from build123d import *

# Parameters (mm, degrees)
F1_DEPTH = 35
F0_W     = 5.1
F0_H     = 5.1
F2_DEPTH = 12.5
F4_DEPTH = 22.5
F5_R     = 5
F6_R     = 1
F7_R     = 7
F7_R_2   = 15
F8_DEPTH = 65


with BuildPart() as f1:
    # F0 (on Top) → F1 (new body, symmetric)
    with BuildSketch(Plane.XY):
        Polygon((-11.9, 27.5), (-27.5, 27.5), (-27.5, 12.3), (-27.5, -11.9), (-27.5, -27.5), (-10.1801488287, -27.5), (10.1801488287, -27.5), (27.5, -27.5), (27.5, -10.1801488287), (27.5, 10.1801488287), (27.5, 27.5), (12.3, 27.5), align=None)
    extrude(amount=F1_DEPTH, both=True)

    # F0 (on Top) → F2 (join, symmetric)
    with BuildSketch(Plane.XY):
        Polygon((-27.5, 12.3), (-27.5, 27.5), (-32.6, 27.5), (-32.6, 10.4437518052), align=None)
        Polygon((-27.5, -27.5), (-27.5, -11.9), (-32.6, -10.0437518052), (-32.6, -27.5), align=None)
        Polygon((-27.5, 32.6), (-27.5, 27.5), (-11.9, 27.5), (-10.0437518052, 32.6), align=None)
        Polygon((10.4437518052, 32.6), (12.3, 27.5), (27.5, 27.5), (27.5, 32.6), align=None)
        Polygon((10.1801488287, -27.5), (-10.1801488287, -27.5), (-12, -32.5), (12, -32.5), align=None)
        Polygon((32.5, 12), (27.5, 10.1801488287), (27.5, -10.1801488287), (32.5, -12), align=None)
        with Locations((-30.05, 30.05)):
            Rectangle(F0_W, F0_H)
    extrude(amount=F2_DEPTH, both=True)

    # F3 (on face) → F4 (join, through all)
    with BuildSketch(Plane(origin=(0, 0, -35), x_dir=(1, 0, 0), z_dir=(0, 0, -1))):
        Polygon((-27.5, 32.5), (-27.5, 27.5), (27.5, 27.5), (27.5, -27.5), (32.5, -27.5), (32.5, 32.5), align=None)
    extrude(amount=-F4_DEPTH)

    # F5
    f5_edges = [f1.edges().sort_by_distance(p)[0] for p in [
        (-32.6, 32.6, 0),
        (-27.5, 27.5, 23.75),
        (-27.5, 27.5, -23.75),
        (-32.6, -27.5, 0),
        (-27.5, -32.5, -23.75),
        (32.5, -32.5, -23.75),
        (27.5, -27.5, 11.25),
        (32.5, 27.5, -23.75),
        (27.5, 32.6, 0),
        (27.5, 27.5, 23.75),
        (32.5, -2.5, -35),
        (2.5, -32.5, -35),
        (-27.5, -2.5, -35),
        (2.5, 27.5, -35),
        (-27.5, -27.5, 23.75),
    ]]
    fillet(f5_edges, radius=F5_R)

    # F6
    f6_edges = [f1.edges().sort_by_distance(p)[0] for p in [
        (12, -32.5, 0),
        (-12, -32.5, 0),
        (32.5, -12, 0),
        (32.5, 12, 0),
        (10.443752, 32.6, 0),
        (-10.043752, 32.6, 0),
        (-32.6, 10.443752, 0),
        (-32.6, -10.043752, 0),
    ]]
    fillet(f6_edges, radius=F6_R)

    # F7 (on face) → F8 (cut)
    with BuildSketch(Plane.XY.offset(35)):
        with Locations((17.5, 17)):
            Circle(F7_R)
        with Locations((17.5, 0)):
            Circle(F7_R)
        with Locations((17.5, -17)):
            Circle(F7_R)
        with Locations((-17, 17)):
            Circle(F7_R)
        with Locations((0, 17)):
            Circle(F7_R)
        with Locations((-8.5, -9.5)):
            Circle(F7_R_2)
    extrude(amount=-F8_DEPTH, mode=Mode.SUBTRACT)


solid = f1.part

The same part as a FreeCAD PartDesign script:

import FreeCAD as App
import Part
import Sketcher
from FreeCAD import Vector
Q = App.Units.Quantity


def edges_at(feature, points):
    """Names of the edges that pass closest to the given points."""
    edges = feature.Shape.Edges
    near = lambda p: min(range(len(edges)), key=lambda i: edges[i].distToShape(Part.Vertex(*p))[0])
    return sorted({f"Edge{near(p) + 1}" for p in points})

doc = App.newDocument("Part")
body = doc.addObject("PartDesign::Body", "Body")

# Sketch on XY plane
sketch1 = doc.addObject("Sketcher::SketchObject", "Sketch")
body.addObject(sketch1)
sketch1.AttachmentSupport = (doc.XY_Plane, [""])
sketch1.MapMode = "FlatFace"
sketch1.addGeometry(Part.LineSegment(Vector(-28, 28, 0), Vector(-28, -28, 0)), False)
sketch1.addGeometry(Part.LineSegment(Vector(-28, -28, 0), Vector(28, -28, 0)), False)
sketch1.addGeometry(Part.LineSegment(Vector(28, -28, 0), Vector(28, 28, 0)), False)
sketch1.addGeometry(Part.LineSegment(Vector(28, 28, 0), Vector(-28, 28, 0)), False)
sketch1.addConstraint(Sketcher.Constraint("Coincident", 0, 2, 1, 1))
sketch1.addConstraint(Sketcher.Constraint("Coincident", 1, 2, 2, 1))
sketch1.addConstraint(Sketcher.Constraint("Coincident", 2, 2, 3, 1))
sketch1.addConstraint(Sketcher.Constraint("Coincident", 3, 2, 0, 1))
sketch1.addConstraint(Sketcher.Constraint("Vertical", 0))
sketch1.addConstraint(Sketcher.Constraint("Horizontal", 1))
sketch1.addConstraint(Sketcher.Constraint("Vertical", 2))
sketch1.addConstraint(Sketcher.Constraint("Horizontal", 3))
sketch1.addConstraint(Sketcher.Constraint("Symmetric", 0, 2, 2, 2, -1, 1))
sketch1.addConstraint(Sketcher.Constraint("Equal", 3, 0))
sketch1.addConstraint(Sketcher.Constraint("DistanceX", 1, 1, 1, 2, Q("55 mm")))
pad1 = doc.addObject("PartDesign::Pad", "Pad")
body.addObject(pad1)
pad1.Profile = sketch1
pad1.Length = 70
pad1.Midplane = True

# Sketch on XY plane
sketch2 = doc.addObject("Sketcher::SketchObject", "Sketch001")
body.addObject(sketch2)
sketch2.AttachmentSupport = (doc.XY_Plane, [""])
sketch2.MapMode = "FlatFace"
sketch2.addGeometry(Part.LineSegment(Vector(-28, 12, 0), Vector(-28, 28, 0)), False)
sketch2.addGeometry(Part.LineSegment(Vector(-28, 28, 0), Vector(-12, 28, 0)), False)
sketch2.addGeometry(Part.LineSegment(Vector(-12, 28, 0), Vector(-10, 33, 0)), False)
sketch2.addGeometry(Part.LineSegment(Vector(-10, 33, 0), Vector(-33, 33, 0)), False)
sketch2.addGeometry(Part.LineSegment(Vector(-33, 33, 0), Vector(-33, 10, 0)), False)
sketch2.addGeometry(Part.LineSegment(Vector(-33, 10, 0), Vector(-28, 12, 0)), False)
sketch2.addGeometry(Part.LineSegment(Vector(-28, -28, 0), Vector(-28, -12, 0)), False)
sketch2.addGeometry(Part.LineSegment(Vector(-28, -12, 0), Vector(-33, -10, 0)), False)
sketch2.addGeometry(Part.LineSegment(Vector(-33, -10, 0), Vector(-33, -28, 0)), False)
sketch2.addGeometry(Part.LineSegment(Vector(-33, -28, 0), Vector(-28, -28, 0)), False)
sketch2.addGeometry(Part.LineSegment(Vector(10, 33, 0), Vector(12, 28, 0)), False)
sketch2.addGeometry(Part.LineSegment(Vector(12, 28, 0), Vector(28, 28, 0)), False)
sketch2.addGeometry(Part.LineSegment(Vector(28, 28, 0), Vector(28, 33, 0)), False)
sketch2.addGeometry(Part.LineSegment(Vector(28, 33, 0), Vector(10, 33, 0)), False)
sketch2.addGeometry(Part.LineSegment(Vector(10, -28, 0), Vector(-10, -28, 0)), False)
sketch2.addGeometry(Part.LineSegment(Vector(-10, -28, 0), Vector(-12, -32, 0)), False)
sketch2.addGeometry(Part.LineSegment(Vector(-12, -32, 0), Vector(12, -32, 0)), False)
sketch2.addGeometry(Part.LineSegment(Vector(12, -32, 0), Vector(10, -28, 0)), False)
sketch2.addGeometry(Part.LineSegment(Vector(32, 12, 0), Vector(28, 10, 0)), False)
sketch2.addGeometry(Part.LineSegment(Vector(28, 10, 0), Vector(28, -10, 0)), False)
sketch2.addGeometry(Part.LineSegment(Vector(28, -10, 0), Vector(32, -12, 0)), False)
sketch2.addGeometry(Part.LineSegment(Vector(32, -12, 0), Vector(32, 12, 0)), False)
sketch2.addConstraint(Sketcher.Constraint("Coincident", 0, 2, 1, 1))
sketch2.addConstraint(Sketcher.Constraint("Coincident", 1, 2, 2, 1))
sketch2.addConstraint(Sketcher.Constraint("Coincident", 2, 2, 3, 1))
sketch2.addConstraint(Sketcher.Constraint("Coincident", 3, 2, 4, 1))
sketch2.addConstraint(Sketcher.Constraint("Coincident", 4, 2, 5, 1))
sketch2.addConstraint(Sketcher.Constraint("Coincident", 5, 2, 0, 1))
sketch2.addConstraint(Sketcher.Constraint("Coincident", 6, 2, 7, 1))
sketch2.addConstraint(Sketcher.Constraint("Coincident", 7, 2, 8, 1))
sketch2.addConstraint(Sketcher.Constraint("Coincident", 8, 2, 9, 1))
sketch2.addConstraint(Sketcher.Constraint("Coincident", 9, 2, 6, 1))
sketch2.addConstraint(Sketcher.Constraint("Coincident", 10, 2, 11, 1))
sketch2.addConstraint(Sketcher.Constraint("Coincident", 11, 2, 12, 1))
sketch2.addConstraint(Sketcher.Constraint("Coincident", 12, 2, 13, 1))
sketch2.addConstraint(Sketcher.Constraint("Coincident", 13, 2, 10, 1))
sketch2.addConstraint(Sketcher.Constraint("Coincident", 14, 2, 15, 1))
sketch2.addConstraint(Sketcher.Constraint("Coincident", 15, 2, 16, 1))
sketch2.addConstraint(Sketcher.Constraint("Coincident", 16, 2, 17, 1))
sketch2.addConstraint(Sketcher.Constraint("Coincident", 17, 2, 14, 1))
sketch2.addConstraint(Sketcher.Constraint("Coincident", 18, 2, 19, 1))
sketch2.addConstraint(Sketcher.Constraint("Coincident", 19, 2, 20, 1))
sketch2.addConstraint(Sketcher.Constraint("Coincident", 20, 2, 21, 1))
sketch2.addConstraint(Sketcher.Constraint("Coincident", 21, 2, 18, 1))
sketch2.addConstraint(Sketcher.Constraint("Vertical", 0))
sketch2.addConstraint(Sketcher.Constraint("Horizontal", 1))
sketch2.addConstraint(Sketcher.Constraint("Horizontal", 3))
sketch2.addConstraint(Sketcher.Constraint("Vertical", 4))
sketch2.addConstraint(Sketcher.Constraint("Vertical", 6))
sketch2.addConstraint(Sketcher.Constraint("Vertical", 8))
sketch2.addConstraint(Sketcher.Constraint("Horizontal", 9))
sketch2.addConstraint(Sketcher.Constraint("Horizontal", 11))
sketch2.addConstraint(Sketcher.Constraint("Vertical", 12))
sketch2.addConstraint(Sketcher.Constraint("Horizontal", 13))
sketch2.addConstraint(Sketcher.Constraint("Horizontal", 14))
sketch2.addConstraint(Sketcher.Constraint("Horizontal", 16))
sketch2.addConstraint(Sketcher.Constraint("Vertical", 19))
sketch2.addConstraint(Sketcher.Constraint("Vertical", 21))
sketch2.addConstraint(Sketcher.Constraint("Symmetric", 9, 2, 11, 2, -1, 1))
sketch2.addConstraint(Sketcher.Constraint("Symmetric", 0, 2, 11, 2, -2))
sketch2.addConstraint(Sketcher.Constraint("Perpendicular", 2, 7))
sketch2.addConstraint(Sketcher.Constraint("Perpendicular", 5, 10))
sketch2.addConstraint(Sketcher.Constraint("Perpendicular", 7, 15))
sketch2.addConstraint(Sketcher.Constraint("Parallel", 10, 17))
sketch2.addConstraint(Sketcher.Constraint("Perpendicular", 17, 18))
sketch2.addConstraint(Sketcher.Constraint("Perpendicular", 15, 20))
sketch2.addConstraint(Sketcher.Constraint("Horizontal", 3, 2, 12, 2))
sketch2.addConstraint(Sketcher.Constraint("Horizontal", 9, 2, 14, 2))
sketch2.addConstraint(Sketcher.Constraint("Vertical", 4, 2, 7, 2))
sketch2.addConstraint(Sketcher.Constraint("Vertical", 12, 2, 18, 2))
sketch2.addConstraint(Sketcher.Constraint("Equal", 11, 0))
sketch2.addConstraint(Sketcher.Constraint("Equal", 1, 6))
sketch2.addConstraint(Sketcher.Constraint("Equal", 9, 12))
sketch2.addConstraint(Sketcher.Constraint("Equal", 14, 19))
sketch2.addConstraint(Sketcher.Constraint("Equal", 16, 21))
sketch2.addConstraint(Sketcher.Constraint("Equal", 2, 5))
sketch2.addConstraint(Sketcher.Constraint("DistanceX", 16, 1, 16, 2, Q("24 mm")))
sketch2.addConstraint(Sketcher.Constraint("Angle", 2, Q("70 deg")))
sketch2.addConstraint(Sketcher.Constraint("DistanceX", 1, 1, 1, 2, Q("15.6 mm")))
sketch2.addConstraint(Sketcher.Constraint("DistanceX", 9, 1, 9, 2, Q("5.1 mm")))
sketch2.addConstraint(Sketcher.Constraint("DistanceX", 11, 1, 11, 2, Q("15.2 mm")))
sketch2.addConstraint(Sketcher.Constraint("DistanceX", 15, 2, -1, 1, Q("12 mm")))
sketch2.addConstraint(Sketcher.Constraint("DistanceY", 20, 2, -1, 1, Q("12 mm")))
sketch2.addConstraint(Sketcher.Constraint("DistanceY", 8, 2, 0, 2, Q("55 mm")))
sketch2.addConstraint(Sketcher.Constraint("DistanceX", 0, 2, 11, 2, Q("55 mm")))
sketch2.addConstraint(Sketcher.Constraint("DistanceY", 15, 2, 14, 2, Q("5 mm")))
pad2 = doc.addObject("PartDesign::Pad", "Pad001")
body.addObject(pad2)
pad2.Profile = sketch2
pad2.Length = 25
pad2.Midplane = True

# Sketch on XY plane
sketch3 = doc.addObject("Sketcher::SketchObject", "Sketch002")
body.addObject(sketch3)
sketch3.AttachmentSupport = (doc.XY_Plane, [""])
sketch3.MapMode = "FlatFace"
sketch3.AttachmentOffset = App.Placement(Vector(0, 0, -35), App.Rotation())
sketch3.addGeometry(Part.LineSegment(Vector(-28, -32, 0), Vector(-28, -28, 0)), False)
sketch3.addGeometry(Part.LineSegment(Vector(-28, -28, 0), Vector(28, -28, 0)), False)
sketch3.addGeometry(Part.LineSegment(Vector(28, -28, 0), Vector(28, 28, 0)), False)
sketch3.addGeometry(Part.LineSegment(Vector(28, 28, 0), Vector(32, 28, 0)), False)
sketch3.addGeometry(Part.LineSegment(Vector(32, 28, 0), Vector(32, -32, 0)), False)
sketch3.addGeometry(Part.LineSegment(Vector(32, -32, 0), Vector(-28, -32, 0)), False)
sketch3.addConstraint(Sketcher.Constraint("Coincident", 0, 2, 1, 1))
sketch3.addConstraint(Sketcher.Constraint("Coincident", 1, 2, 2, 1))
sketch3.addConstraint(Sketcher.Constraint("Coincident", 2, 2, 3, 1))
sketch3.addConstraint(Sketcher.Constraint("Coincident", 3, 2, 4, 1))
sketch3.addConstraint(Sketcher.Constraint("Coincident", 4, 2, 5, 1))
sketch3.addConstraint(Sketcher.Constraint("Coincident", 5, 2, 0, 1))
sketch3.addConstraint(Sketcher.Constraint("Vertical", 0))
sketch3.addConstraint(Sketcher.Constraint("Horizontal", 1))
sketch3.addConstraint(Sketcher.Constraint("Vertical", 2))
sketch3.addConstraint(Sketcher.Constraint("Horizontal", 3))
sketch3.addConstraint(Sketcher.Constraint("Vertical", 4))
sketch3.addConstraint(Sketcher.Constraint("Horizontal", 5))
sketch3.addConstraint(Sketcher.Constraint("Symmetric", 0, 2, 2, 2, -1, 1))
sketch3.addConstraint(Sketcher.Constraint("Equal", 3, 0))
sketch3.addConstraint(Sketcher.Constraint("Equal", 1, 2))
sketch3.addConstraint(Sketcher.Constraint("DistanceX", 1, 1, 1, 2, Q("55 mm")))
sketch3.addConstraint(Sketcher.Constraint("DistanceX", 3, 1, 3, 2, Q("5 mm")))
pad3 = doc.addObject("PartDesign::Pad", "Pad002")
body.addObject(pad3)
pad3.Profile = sketch3
pad3.Length = 22.5
doc.recompute()

fillet = doc.addObject("PartDesign::Fillet", "Fillet")
body.addObject(fillet)
fillet.Base = (pad3, edges_at(pad3, [
    (-32.6, 32.6, 0),
    (-27.5, 27.5, 23.75),
    (-27.5, 27.5, -23.75),
    (-32.6, -27.5, 0),
    (-27.5, -32.5, -23.75),
    (32.5, -32.5, -23.75),
    (27.5, -27.5, 11.25),
    (32.5, 27.5, -23.75),
    (27.5, 32.6, 0),
    (27.5, 27.5, 23.75),
    (32.5, -2.5, -35),
    (2.5, -32.5, -35),
    (-27.5, -2.5, -35),
    (2.5, 27.5, -35),
    (-27.5, -27.5, 23.75),
]))
fillet.Radius = 5
doc.recompute()

fillet2 = doc.addObject("PartDesign::Fillet", "Fillet001")
body.addObject(fillet2)
fillet2.Base = (fillet, edges_at(fillet, [
    (12, -32.5, 0),
    (-12, -32.5, 0),
    (32.5, -12, 0),
    (32.5, 12, 0),
    (10.444, 32.6, 0),
    (-10.044, 32.6, 0),
    (-32.6, 10.444, 0),
    (-32.6, -10.044, 0),
]))
fillet2.Radius = 1

# Sketch on XY plane
sketch4 = doc.addObject("Sketcher::SketchObject", "Sketch003")
body.addObject(sketch4)
sketch4.AttachmentSupport = (doc.XY_Plane, [""])
sketch4.MapMode = "FlatFace"
sketch4.AttachmentOffset = App.Placement(Vector(0, 0, 35), App.Rotation())
sketch4.addGeometry(Part.Circle(Vector(18, 17, 0), Vector(0, 0, 1), 7), False)
sketch4.addGeometry(Part.Circle(Vector(18, 0, 0), Vector(0, 0, 1), 7), False)
sketch4.addGeometry(Part.Circle(Vector(18, -17, 0), Vector(0, 0, 1), 7), False)
sketch4.addGeometry(Part.Circle(Vector(-17, 17, 0), Vector(0, 0, 1), 7), False)
sketch4.addGeometry(Part.Circle(Vector(0, 17, 0), Vector(0, 0, 1), 7), False)
sketch4.addGeometry(Part.Circle(Vector(-8, -10, 0), Vector(0, 0, 1), 15), False)
sketch4.addConstraint(Sketcher.Constraint("Equal", 0, 1))
sketch4.addConstraint(Sketcher.Constraint("Equal", 1, 2))
sketch4.addConstraint(Sketcher.Constraint("Equal", 2, 3))
sketch4.addConstraint(Sketcher.Constraint("Equal", 3, 4))
sketch4.addConstraint(Sketcher.Constraint("Symmetric", 0, 3, 2, 3, -1))
sketch4.addConstraint(Sketcher.Constraint("PointOnObject", 1, 3, -1))
sketch4.addConstraint(Sketcher.Constraint("PointOnObject", 4, 3, -2))
sketch4.addConstraint(Sketcher.Constraint("Horizontal", 0, 3, 3, 3))
sketch4.addConstraint(Sketcher.Constraint("Horizontal", 3, 3, 4, 3))
sketch4.addConstraint(Sketcher.Constraint("Vertical", 0, 3, 1, 3))
sketch4.addConstraint(Sketcher.Constraint("Diameter", 0, Q("14 mm")))
sketch4.addConstraint(Sketcher.Constraint("Diameter", 5, Q("30 mm")))
sketch4.addConstraint(Sketcher.Constraint("DistanceY", -1, 1, 0, 3, Q("17 mm")))
sketch4.addConstraint(Sketcher.Constraint("DistanceX", 3, 3, -1, 1, Q("17 mm")))
sketch4.addConstraint(Sketcher.Constraint("DistanceX", 5, 3, 2, 3, Q("26 mm")))
sketch4.addConstraint(Sketcher.Constraint("DistanceX", -1, 1, 0, 3, Q("17.5 mm")))
sketch4.addConstraint(Sketcher.Constraint("DistanceY", 5, 3, -1, 1, Q("9.5 mm")))
pocket1 = doc.addObject("PartDesign::Pocket", "Pocket")
body.addObject(pocket1)
pocket1.Profile = sketch4
pocket1.Length = 65

doc.recompute()
